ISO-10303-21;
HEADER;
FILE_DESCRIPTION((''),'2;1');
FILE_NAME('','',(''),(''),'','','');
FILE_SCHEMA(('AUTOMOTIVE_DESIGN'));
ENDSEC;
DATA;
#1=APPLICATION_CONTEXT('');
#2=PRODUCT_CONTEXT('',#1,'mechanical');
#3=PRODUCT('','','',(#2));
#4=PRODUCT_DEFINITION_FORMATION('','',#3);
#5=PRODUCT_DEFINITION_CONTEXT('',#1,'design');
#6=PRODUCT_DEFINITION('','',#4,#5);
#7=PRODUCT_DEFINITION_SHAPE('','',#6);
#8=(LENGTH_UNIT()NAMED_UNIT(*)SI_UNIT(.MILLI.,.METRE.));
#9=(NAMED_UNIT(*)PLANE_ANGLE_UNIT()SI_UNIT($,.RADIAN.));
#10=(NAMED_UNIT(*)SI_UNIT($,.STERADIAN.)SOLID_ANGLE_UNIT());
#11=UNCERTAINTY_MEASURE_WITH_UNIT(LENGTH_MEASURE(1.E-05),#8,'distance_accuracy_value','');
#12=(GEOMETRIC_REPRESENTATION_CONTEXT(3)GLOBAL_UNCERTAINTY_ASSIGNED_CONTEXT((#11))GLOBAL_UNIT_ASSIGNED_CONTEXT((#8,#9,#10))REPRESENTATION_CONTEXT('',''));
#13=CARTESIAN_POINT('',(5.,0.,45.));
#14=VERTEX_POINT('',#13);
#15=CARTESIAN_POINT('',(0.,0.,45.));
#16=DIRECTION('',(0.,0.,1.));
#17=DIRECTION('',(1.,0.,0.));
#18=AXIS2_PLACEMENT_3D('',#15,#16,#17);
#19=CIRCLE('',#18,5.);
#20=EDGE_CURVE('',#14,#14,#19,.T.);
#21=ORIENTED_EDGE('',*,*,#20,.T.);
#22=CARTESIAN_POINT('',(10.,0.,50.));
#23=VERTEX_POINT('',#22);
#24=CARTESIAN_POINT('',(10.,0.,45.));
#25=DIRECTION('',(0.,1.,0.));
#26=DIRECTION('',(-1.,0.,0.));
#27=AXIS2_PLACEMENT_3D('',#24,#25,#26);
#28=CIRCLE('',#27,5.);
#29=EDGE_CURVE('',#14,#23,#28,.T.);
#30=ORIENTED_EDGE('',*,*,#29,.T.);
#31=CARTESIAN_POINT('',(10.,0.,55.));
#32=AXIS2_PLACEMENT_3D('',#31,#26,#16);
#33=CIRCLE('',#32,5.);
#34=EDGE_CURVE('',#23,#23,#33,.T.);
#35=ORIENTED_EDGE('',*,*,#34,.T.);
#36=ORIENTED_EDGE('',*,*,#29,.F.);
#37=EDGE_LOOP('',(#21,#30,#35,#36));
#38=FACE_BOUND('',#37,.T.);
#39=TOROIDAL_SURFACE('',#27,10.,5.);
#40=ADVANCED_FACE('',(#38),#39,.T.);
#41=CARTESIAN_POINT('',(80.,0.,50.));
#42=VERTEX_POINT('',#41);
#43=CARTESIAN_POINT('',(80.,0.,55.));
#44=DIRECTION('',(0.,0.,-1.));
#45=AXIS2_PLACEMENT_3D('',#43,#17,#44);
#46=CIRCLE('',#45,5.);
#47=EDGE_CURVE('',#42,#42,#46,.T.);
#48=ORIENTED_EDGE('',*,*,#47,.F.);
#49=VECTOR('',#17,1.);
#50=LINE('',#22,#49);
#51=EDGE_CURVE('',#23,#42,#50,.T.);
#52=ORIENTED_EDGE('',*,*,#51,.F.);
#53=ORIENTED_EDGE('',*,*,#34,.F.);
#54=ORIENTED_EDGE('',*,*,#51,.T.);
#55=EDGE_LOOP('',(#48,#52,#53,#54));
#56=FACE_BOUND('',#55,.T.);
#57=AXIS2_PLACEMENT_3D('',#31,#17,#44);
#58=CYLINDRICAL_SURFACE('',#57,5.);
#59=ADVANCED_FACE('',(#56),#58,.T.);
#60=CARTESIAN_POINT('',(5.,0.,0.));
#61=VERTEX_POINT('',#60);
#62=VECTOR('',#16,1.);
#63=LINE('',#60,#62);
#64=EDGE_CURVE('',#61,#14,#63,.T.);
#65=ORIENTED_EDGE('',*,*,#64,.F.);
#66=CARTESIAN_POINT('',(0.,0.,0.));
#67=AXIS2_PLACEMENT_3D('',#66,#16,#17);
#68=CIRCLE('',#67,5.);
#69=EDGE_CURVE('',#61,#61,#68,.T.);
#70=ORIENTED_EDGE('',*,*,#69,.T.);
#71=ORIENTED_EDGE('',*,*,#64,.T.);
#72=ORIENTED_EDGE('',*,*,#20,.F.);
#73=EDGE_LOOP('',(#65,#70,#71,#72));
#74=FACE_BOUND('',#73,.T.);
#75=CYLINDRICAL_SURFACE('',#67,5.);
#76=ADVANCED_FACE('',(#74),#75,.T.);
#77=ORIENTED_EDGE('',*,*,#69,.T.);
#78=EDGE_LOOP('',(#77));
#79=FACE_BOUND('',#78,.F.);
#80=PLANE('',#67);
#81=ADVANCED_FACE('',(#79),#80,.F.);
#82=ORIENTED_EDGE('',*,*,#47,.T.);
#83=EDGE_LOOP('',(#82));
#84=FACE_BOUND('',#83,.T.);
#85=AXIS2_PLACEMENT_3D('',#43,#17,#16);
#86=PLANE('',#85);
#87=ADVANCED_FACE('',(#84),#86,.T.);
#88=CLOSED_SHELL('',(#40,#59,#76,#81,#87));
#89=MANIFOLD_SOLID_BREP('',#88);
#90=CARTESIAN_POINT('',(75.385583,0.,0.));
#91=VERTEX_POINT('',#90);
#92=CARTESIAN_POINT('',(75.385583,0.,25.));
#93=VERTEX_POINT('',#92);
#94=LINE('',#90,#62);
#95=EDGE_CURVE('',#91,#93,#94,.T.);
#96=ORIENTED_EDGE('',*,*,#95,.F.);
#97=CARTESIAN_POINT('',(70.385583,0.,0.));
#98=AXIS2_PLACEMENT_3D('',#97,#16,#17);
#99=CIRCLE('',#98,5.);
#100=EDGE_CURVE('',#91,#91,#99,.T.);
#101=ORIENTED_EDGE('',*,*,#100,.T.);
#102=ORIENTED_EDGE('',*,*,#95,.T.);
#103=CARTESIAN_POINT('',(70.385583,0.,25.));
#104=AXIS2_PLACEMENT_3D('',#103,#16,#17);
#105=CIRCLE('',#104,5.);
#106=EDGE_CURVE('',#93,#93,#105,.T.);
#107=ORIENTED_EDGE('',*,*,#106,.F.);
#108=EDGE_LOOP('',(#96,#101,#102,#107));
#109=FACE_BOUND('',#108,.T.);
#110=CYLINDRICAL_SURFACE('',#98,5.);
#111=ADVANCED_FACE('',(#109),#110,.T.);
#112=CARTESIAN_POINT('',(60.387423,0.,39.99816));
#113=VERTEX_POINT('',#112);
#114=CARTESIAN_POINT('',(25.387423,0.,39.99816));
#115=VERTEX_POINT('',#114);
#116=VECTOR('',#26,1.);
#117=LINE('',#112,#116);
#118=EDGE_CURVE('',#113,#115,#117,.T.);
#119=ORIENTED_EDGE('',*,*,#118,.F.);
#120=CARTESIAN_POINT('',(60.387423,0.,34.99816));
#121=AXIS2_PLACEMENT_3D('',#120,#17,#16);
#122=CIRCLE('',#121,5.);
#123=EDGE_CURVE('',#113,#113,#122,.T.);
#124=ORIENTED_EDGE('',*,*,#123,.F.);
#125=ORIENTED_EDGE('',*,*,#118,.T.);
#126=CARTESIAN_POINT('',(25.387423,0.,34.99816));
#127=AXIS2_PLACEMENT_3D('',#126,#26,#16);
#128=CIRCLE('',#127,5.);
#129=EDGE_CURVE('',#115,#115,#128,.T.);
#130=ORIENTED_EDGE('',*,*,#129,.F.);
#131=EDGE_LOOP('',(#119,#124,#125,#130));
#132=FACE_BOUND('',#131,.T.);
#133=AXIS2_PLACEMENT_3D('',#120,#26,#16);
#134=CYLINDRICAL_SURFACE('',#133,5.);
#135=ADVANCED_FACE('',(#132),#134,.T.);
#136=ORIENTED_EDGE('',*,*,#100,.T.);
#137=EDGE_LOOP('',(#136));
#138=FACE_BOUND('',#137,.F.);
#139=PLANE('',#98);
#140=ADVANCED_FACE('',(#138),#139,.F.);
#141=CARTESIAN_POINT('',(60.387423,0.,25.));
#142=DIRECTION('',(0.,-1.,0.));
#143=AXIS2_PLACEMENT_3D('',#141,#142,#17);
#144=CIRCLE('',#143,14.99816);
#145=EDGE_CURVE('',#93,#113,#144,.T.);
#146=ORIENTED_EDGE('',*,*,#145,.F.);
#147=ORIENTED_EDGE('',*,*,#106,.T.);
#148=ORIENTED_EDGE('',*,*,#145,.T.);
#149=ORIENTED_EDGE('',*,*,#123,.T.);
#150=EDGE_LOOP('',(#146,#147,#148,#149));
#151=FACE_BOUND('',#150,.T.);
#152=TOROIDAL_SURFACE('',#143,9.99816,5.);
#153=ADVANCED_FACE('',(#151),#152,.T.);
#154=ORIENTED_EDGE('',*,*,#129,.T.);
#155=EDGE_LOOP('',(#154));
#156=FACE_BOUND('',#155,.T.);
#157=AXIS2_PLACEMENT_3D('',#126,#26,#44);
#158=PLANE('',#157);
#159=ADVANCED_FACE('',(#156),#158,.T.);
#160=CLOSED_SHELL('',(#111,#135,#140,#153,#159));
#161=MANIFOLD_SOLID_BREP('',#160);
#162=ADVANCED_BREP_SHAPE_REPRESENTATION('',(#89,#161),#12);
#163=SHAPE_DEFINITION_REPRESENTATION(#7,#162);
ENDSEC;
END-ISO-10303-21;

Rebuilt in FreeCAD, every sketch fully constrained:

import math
import FreeCAD as App
import Part
import Sketcher
from FreeCAD import Vector

doc = App.newDocument("Part")
body = doc.addObject("PartDesign::Body", "Body")

# Sketch on XY plane
sketch1 = body.newObject("Sketcher::SketchObject", "Sketch")
sketch1.AttachmentSupport = (doc.getObject("XY_Plane"), [""])
sketch1.MapMode = "FlatFace"
sketch1.addGeometry(Part.Circle(Vector(0, 0, 0), Vector(0, 0, 1), 5), False)
sketch1.addConstraint([
    Sketcher.Constraint("Coincident", 0, 3, -1, 1),
    Sketcher.Constraint("Diameter", 0, 10.0),
])

# Sketch on XZ plane
sketch2 = body.newObject("Sketcher::SketchObject", "Sketch001")
sketch2.AttachmentSupport = (doc.getObject("XZ_Plane"), [""])
sketch2.MapMode = "FlatFace"
sketch2.addGeometry([
    Part.LineSegment(Vector(0, 0, 0), Vector(0, 45, 0)),
    Part.ArcOfCircle(Part.Circle(Vector(10, 45, 0), Vector(0, 0, 1), 10), math.radians(90), math.radians(180)),
    Part.LineSegment(Vector(10, 55, 0), Vector(80, 55, 0)),
], False)
sketch2.addConstraint([
    Sketcher.Constraint("Tangent", 0, 2, 1, 2),
    Sketcher.Constraint("Tangent", 1, 1, 2, 1),
    Sketcher.Constraint("Vertical", 0),
    Sketcher.Constraint("Horizontal", 2),
    Sketcher.Constraint("Coincident", 0, 1, -1, 1),
    Sketcher.Constraint("Radius", 1, 10.0),
    Sketcher.Constraint("DistanceX", 2, 1, 2, 2, 70.0),
    Sketcher.Constraint("DistanceY", 0, 1, 0, 2, 45.0),
])
doc.recompute()

additivepipe = body.newObject("PartDesign::AdditivePipe", "AdditivePipe")
additivepipe.Profile = sketch1
additivepipe.Spine = (sketch2, ["Edge1", "Edge2", "Edge3"])
body2 = doc.addObject("PartDesign::Body", "Body001")

# Sketch on XY plane
sketch3 = body2.newObject("Sketcher::SketchObject", "Sketch002")
sketch3.AttachmentSupport = (doc.getObject("XY_Plane001"), [""])
sketch3.MapMode = "FlatFace"
sketch3.addGeometry(Part.Circle(Vector(70.385583, 0, 0), Vector(0, 0, 1), 5), False)
sketch3.addConstraint([
    Sketcher.Constraint("PointOnObject", 0, 3, -1),
    Sketcher.Constraint("Diameter", 0, 10.0),
    Sketcher.Constraint("DistanceX", -1, 1, 0, 3, 70.385583),
])

# Sketch on XZ plane
sketch4 = body2.newObject("Sketcher::SketchObject", "Sketch003")
sketch4.AttachmentSupport = (doc.getObject("XZ_Plane001"), [""])
sketch4.MapMode = "FlatFace"
sketch4.addGeometry([
    Part.LineSegment(Vector(70.387423, 0, 0), Vector(70.387423, 25, 0)),
    Part.ArcOfCircle(Part.Circle(Vector(60.387423, 25, 0), Vector(0, 0, 1), 10), math.radians(0), math.radians(90)),
    Part.LineSegment(Vector(60.387423, 35, 0), Vector(25.387423, 35, 0)),
], False)
sketch4.addConstraint([
    Sketcher.Constraint("Tangent", 0, 2, 1, 1),
    Sketcher.Constraint("Tangent", 1, 2, 2, 1),
    Sketcher.Constraint("Vertical", 0),
    Sketcher.Constraint("Horizontal", 2),
    Sketcher.Constraint("PointOnObject", 0, 1, -1),
    Sketcher.Constraint("Radius", 1, 10.0),
    Sketcher.Constraint("DistanceX", 2, 2, 2, 1, 35.0),
    Sketcher.Constraint("DistanceY", 0, 1, 0, 2, 25.0),
    Sketcher.Constraint("DistanceX", -1, 1, 1, 3, 60.387423),
])
doc.recompute()

additivepipe2 = body2.newObject("PartDesign::AdditivePipe", "AdditivePipe001")
additivepipe2.Profile = sketch3
additivepipe2.Spine = (sketch4, ["Edge1", "Edge2", "Edge3"])

doc.recompute()
